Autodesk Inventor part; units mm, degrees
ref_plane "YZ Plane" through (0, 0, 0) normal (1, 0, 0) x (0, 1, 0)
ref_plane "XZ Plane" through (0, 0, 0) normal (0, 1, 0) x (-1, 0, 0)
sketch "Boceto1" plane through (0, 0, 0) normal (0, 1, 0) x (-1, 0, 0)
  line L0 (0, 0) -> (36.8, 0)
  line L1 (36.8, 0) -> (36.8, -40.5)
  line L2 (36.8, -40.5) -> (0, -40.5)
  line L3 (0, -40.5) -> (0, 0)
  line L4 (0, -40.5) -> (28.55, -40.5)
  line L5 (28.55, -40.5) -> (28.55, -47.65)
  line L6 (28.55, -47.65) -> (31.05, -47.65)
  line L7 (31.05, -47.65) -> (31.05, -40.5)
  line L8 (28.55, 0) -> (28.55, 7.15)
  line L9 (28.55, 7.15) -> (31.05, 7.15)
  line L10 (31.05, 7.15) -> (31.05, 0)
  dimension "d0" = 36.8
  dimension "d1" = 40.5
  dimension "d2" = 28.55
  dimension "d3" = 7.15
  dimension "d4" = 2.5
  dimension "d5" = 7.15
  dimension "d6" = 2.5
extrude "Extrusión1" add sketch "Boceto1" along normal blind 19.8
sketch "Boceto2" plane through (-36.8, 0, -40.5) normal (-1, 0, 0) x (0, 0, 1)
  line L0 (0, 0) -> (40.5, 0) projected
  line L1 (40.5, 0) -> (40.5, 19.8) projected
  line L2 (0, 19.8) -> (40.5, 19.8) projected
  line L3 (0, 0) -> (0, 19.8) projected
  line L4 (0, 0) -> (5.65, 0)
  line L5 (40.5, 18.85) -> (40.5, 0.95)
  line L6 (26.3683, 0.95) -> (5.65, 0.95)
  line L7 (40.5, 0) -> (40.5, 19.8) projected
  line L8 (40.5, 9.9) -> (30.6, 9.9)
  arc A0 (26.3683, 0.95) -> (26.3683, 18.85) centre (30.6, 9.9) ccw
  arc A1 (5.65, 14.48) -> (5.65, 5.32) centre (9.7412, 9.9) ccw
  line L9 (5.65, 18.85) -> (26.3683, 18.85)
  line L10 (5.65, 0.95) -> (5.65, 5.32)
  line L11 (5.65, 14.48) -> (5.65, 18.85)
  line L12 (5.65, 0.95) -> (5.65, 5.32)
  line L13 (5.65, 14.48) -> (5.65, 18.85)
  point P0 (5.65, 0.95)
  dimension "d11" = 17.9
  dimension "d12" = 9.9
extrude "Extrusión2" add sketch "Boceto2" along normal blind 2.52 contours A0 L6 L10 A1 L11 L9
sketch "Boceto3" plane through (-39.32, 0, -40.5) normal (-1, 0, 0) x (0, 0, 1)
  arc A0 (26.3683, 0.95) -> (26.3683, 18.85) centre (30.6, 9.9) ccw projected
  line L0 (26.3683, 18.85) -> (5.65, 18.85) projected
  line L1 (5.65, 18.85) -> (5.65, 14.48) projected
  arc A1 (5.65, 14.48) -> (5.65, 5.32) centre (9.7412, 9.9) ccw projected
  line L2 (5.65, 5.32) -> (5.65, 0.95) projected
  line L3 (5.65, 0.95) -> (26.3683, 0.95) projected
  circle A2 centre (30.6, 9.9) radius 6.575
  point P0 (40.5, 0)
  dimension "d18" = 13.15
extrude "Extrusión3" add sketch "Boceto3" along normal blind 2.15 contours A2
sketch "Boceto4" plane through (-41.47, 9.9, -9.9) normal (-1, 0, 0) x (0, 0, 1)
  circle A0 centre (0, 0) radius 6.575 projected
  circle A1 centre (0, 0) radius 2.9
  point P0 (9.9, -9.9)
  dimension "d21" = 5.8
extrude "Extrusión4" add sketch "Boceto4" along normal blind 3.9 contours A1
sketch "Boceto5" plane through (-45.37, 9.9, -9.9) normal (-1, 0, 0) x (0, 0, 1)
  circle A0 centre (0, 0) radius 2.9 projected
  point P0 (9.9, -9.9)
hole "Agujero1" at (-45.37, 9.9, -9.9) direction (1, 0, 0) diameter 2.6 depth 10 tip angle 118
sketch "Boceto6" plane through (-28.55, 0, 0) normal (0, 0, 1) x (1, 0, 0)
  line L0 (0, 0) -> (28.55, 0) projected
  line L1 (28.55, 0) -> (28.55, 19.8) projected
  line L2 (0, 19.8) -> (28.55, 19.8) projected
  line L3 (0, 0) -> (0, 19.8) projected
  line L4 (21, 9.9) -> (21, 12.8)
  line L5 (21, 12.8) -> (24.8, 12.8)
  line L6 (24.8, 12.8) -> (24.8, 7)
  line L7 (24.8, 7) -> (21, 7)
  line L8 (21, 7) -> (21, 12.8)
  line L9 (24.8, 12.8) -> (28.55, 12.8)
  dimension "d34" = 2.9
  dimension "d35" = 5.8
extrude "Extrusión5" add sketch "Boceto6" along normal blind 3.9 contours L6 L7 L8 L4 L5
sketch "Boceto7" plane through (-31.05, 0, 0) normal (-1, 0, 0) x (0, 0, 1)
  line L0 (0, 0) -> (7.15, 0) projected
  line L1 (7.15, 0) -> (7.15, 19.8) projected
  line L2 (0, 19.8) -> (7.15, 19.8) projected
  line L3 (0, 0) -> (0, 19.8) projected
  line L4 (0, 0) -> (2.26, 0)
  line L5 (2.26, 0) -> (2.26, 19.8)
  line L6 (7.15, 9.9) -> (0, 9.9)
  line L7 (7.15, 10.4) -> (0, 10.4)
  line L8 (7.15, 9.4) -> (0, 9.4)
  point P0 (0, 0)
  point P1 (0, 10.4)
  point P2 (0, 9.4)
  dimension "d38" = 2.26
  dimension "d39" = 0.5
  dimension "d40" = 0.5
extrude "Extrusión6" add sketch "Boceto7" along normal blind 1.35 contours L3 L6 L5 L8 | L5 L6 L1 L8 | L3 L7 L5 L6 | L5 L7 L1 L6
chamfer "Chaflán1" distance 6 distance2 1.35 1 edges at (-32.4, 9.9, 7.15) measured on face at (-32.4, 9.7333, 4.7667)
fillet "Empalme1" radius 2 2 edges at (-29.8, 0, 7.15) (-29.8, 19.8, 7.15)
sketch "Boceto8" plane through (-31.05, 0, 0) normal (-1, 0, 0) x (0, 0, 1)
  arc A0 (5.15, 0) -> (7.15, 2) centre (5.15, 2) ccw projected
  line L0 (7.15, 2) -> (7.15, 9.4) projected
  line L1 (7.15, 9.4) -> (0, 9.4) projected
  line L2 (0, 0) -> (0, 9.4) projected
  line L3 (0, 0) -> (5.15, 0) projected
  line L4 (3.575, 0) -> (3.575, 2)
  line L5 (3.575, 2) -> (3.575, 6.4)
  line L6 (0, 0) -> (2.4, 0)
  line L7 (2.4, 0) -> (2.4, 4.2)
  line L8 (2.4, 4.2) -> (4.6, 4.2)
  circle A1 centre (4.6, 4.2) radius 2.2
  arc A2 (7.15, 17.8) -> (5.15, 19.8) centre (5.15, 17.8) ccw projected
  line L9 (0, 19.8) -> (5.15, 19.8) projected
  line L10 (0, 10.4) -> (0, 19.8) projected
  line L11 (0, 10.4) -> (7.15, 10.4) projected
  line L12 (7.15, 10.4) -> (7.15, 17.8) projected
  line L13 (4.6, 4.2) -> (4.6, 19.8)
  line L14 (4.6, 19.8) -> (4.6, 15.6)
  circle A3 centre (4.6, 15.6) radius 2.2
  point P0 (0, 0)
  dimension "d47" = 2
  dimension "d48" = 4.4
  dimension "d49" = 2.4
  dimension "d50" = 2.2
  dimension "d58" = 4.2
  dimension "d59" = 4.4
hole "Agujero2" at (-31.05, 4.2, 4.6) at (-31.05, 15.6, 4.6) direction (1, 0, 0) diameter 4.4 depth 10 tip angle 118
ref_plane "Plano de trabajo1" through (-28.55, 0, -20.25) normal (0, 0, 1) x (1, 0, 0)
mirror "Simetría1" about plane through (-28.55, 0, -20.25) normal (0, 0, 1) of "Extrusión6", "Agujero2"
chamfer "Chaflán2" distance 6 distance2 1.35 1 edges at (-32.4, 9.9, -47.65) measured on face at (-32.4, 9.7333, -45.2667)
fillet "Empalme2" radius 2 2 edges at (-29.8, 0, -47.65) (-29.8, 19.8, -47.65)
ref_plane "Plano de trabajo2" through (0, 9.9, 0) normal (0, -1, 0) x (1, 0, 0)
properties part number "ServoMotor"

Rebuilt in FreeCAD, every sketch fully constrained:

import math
import FreeCAD as App
import Part
import Sketcher
from FreeCAD import Vector
Q = App.Units.Quantity


def edges_at(feature, points):
    """Names of the edges that pass closest to the given points."""
    edges = feature.Shape.Edges
    near = lambda p: min(range(len(edges)), key=lambda i: edges[i].distToShape(Part.Vertex(*p))[0])
    return sorted({f"Edge{near(p) + 1}" for p in points})

doc = App.newDocument("Part")
params = doc.addObject("Spreadsheet::Sheet", "Params")
for row, (alias, value) in enumerate([
    ("sketch1_width", "2.5 mm"),
    ("sketch1_height", "40.5 mm"),
    ("sketch1_width2", "28.55 mm"),
    ("sketch1_height2", "7.15 mm"),
    ("pad1_length", "19.8 mm"),
    ("sketch2_radius", "9.9 mm"),
    ("sketch2_width", "4.37 mm"),
    ("pad2_length", "2.52 mm"),
    ("sketch3_diameter", "13.15 mm"),
    ("pad3_length", "2.15 mm"),
    ("sketch4_diameter", "5.8 mm"),
    ("pad4_length", "3.9 mm"),
    ("sketch5_diameter", "2.6 mm"),
    ("hole_diameter", "2.6 mm"),
    ("hole_depth", "10 mm"),
    ("sketch6_height", "5.8 mm"),
    ("sketch6_width", "3.8 mm"),
    ("pad5_length", "3.9 mm"),
    ("sketch7_width", "1 mm"),
    ("sketch7_height", "7.15 mm"),
    ("pad6_length", "1.35 mm"),
    ("chamfer_size", "6 mm"),
    ("chamfer_size2", "1.35 mm"),
    ("fillet_radius", "2 mm"),
    ("sketch8_diameter", "4.4 mm"),
    ("hole2_diameter", "4.4 mm"),
    ("hole2_depth", "10 mm"),
    ("chamfer2_size", "6 mm"),
    ("chamfer2_size2", "1.35 mm"),
    ("fillet2_radius", "2 mm"),
], start=1):
    params.set(f"A{row}", alias)
    params.set(f"B{row}", "=" + value)
    params.setAlias(f"B{row}", alias)

body = doc.addObject("PartDesign::Body", "Body")

sketch1 = doc.addObject("Sketcher::SketchObject", "Sketch")
body.addObject(sketch1)
sketch1.AttachmentSupport = (doc.XZ_Plane, [""])
sketch1.MapMode = "FlatFace"
sketch1.addGeometry([
    Part.LineSegment(Vector(-28.55, 0, 0), Vector(0, 0, 0)),
    Part.LineSegment(Vector(0, 0, 0), Vector(0, -40.5, 0)),
    Part.LineSegment(Vector(0, -40.5, 0), Vector(-28.55, -40.5, 0)),
    Part.LineSegment(Vector(-28.55, -40.5, 0), Vector(-28.55, -47.65, 0)),
    Part.LineSegment(Vector(-28.55, -47.65, 0), Vector(-31.05, -47.65, 0)),
    Part.LineSegment(Vector(-31.05, -47.65, 0), Vector(-31.05, -40.5, 0)),
    Part.LineSegment(Vector(-31.05, -40.5, 0), Vector(-36.8, -40.5, 0)),
    Part.LineSegment(Vector(-36.8, -40.5, 0), Vector(-36.8, 0, 0)),
    Part.LineSegment(Vector(-36.8, 0, 0), Vector(-31.05, 0, 0)),
    Part.LineSegment(Vector(-31.05, 0, 0), Vector(-31.05, 7.15, 0)),
    Part.LineSegment(Vector(-31.05, 7.15, 0), Vector(-28.55, 7.15, 0)),
    Part.LineSegment(Vector(-28.55, 7.15, 0), Vector(-28.55, 0, 0)),
], False)
sketch1.addConstraint([
    Sketcher.Constraint("Coincident", 0, 2, 1, 1),
    Sketcher.Constraint("Coincident", 1, 2, 2, 1),
    Sketcher.Constraint("Coincident", 2, 2, 3, 1),
    Sketcher.Constraint("Coincident", 3, 2, 4, 1),
    Sketcher.Constraint("Coincident", 4, 2, 5, 1),
    Sketcher.Constraint("Coincident", 5, 2, 6, 1),
    Sketcher.Constraint("Coincident", 6, 2, 7, 1),
    Sketcher.Constraint("Coincident", 7, 2, 8, 1),
    Sketcher.Constraint("Coincident", 8, 2, 9, 1),
    Sketcher.Constraint("Coincident", 9, 2, 10, 1),
    Sketcher.Constraint("Coincident", 10, 2, 11, 1),
    Sketcher.Constraint("Coincident", 11, 2, 0, 1),
    Sketcher.Constraint("Horizontal", 0),
    Sketcher.Constraint("Vertical", 1),
    Sketcher.Constraint("Horizontal", 2),
    Sketcher.Constraint("Vertical", 3),
    Sketcher.Constraint("Horizontal", 4),
    Sketcher.Constraint("Vertical", 5),
    Sketcher.Constraint("Horizontal", 6),
    Sketcher.Constraint("Vertical", 7),
    Sketcher.Constraint("Horizontal", 8),
    Sketcher.Constraint("Vertical", 9),
    Sketcher.Constraint("Horizontal", 10),
    Sketcher.Constraint("Vertical", 11),
    Sketcher.Constraint("Coincident", 0, 2, -1, 1),
    Sketcher.Constraint("PointOnObject", 7, 2, -1),
    Sketcher.Constraint("Horizontal", 2, 2, 5, 2),
    Sketcher.Constraint("Vertical", 5, 2, 8, 2),
    Sketcher.Constraint("Vertical", 3, 2, 10, 2),
    Sketcher.Constraint("Equal", 5, 9),
    Sketcher.Constraint("DistanceX", 4, 2, 4, 1, Q("2.5 mm")),
    Sketcher.Constraint("DistanceY", 1, 2, 1, 1, Q("40.5 mm")),
    Sketcher.Constraint("DistanceX", 0, 1, 0, 2, Q("28.55 mm")),
    Sketcher.Constraint("DistanceY", 3, 2, 3, 1, Q("7.15 mm")),
    Sketcher.Constraint("DistanceX", 6, 2, -1, 1, Q("36.8 mm")),
])
sketch1.setExpression("Constraints[30]", "Params.sketch1_width")
sketch1.setExpression("Constraints[31]", "Params.sketch1_height")
sketch1.setExpression("Constraints[32]", "Params.sketch1_width2")
sketch1.setExpression("Constraints[33]", "Params.sketch1_height2")
pad1 = doc.addObject("PartDesign::Pad", "Pad")
body.addObject(pad1)
pad1.Profile = sketch1
pad1.setExpression("Length", "Params.pad1_length")
pad1.Reversed = True

sketch2 = doc.addObject("Sketcher::SketchObject", "Sketch001")
body.addObject(sketch2)
sketch2.AttachmentSupport = (doc.YZ_Plane, [""])
sketch2.MapMode = "FlatFace"
sketch2.AttachmentOffset = App.Placement(Vector(0, 0, -36.8), App.Rotation())
sketch2.addGeometry([
    Part.ArcOfCircle(Part.Circle(Vector(9.9, -9.9, 0), Vector(0, 0, 1), 9.899989), math.radians(-25.305517), math.radians(205.305517)),
    Part.LineSegment(Vector(18.85, -14.1317, 0), Vector(18.85, -34.85, 0)),
    Part.LineSegment(Vector(18.85, -34.85, 0), Vector(14.48, -34.85, 0)),
    Part.ArcOfCircle(Part.Circle(Vector(9.9, -30.7588, 0), Vector(0, 0, 1), 6.141198), math.radians(-138.226378), math.radians(-41.773622)),
    Part.LineSegment(Vector(5.32, -34.85, 0), Vector(0.95, -34.85, 0)),
    Part.LineSegment(Vector(0.95, -34.85, 0), Vector(0.95, -14.1317, 0)),
], False)
sketch2.addConstraint([
    Sketcher.Constraint("Coincident", 0, 1, 1, 1),
    Sketcher.Constraint("Coincident", 1, 2, 2, 1),
    Sketcher.Constraint("Coincident", 2, 2, 3, 2),
    Sketcher.Constraint("Coincident", 3, 1, 4, 1),
    Sketcher.Constraint("Coincident", 4, 2, 5, 1),
    Sketcher.Constraint("Coincident", 5, 2, 0, 2),
    Sketcher.Constraint("Vertical", 1),
    Sketcher.Constraint("Horizontal", 2),
    Sketcher.Constraint("Horizontal", 4),
    Sketcher.Constraint("Vertical", 5),
    Sketcher.Constraint("Horizontal", 2, 2, 3, 1),
    Sketcher.Constraint("Horizontal", 0, 1, 5, 2),
    Sketcher.Constraint("Vertical", 0, 3, 3, 3),
    Sketcher.Constraint("Radius", 0, Q("9.9 mm")),
    Sketcher.Constraint("DistanceX", -1, 1, 0, 3, Q("9.9 mm")),
    Sketcher.Constraint("DistanceY", 0, 3, -1, 1, Q("9.9 mm")),
    Sketcher.Constraint("DistanceX", 4, 2, 1, 2, Q("17.9 mm")),
    Sketcher.Constraint("DistanceX", 2, 2, 2, 1, Q("4.37 mm")),
    Sketcher.Constraint("Radius", 3, Q("6.1412 mm")),
    Sketcher.Constraint("DistanceY", 1, 2, -1, 1, Q("34.85 mm")),
])
sketch2.setExpression("Constraints[13]", "Params.sketch2_radius")
sketch2.setExpression("Constraints[17]", "Params.sketch2_width")
pad2 = doc.addObject("PartDesign::Pad", "Pad001")
body.addObject(pad2)
pad2.Profile = sketch2
pad2.setExpression("Length", "Params.pad2_length")
pad2.Reversed = True

sketch3 = doc.addObject("Sketcher::SketchObject", "Sketch002")
body.addObject(sketch3)
sketch3.AttachmentSupport = (doc.YZ_Plane, [""])
sketch3.MapMode = "FlatFace"
sketch3.AttachmentOffset = App.Placement(Vector(0, 0, -39.32), App.Rotation())
sketch3.addGeometry(Part.Circle(Vector(9.9, -9.9, 0), Vector(0, 0, 1), 6.575), False)
sketch3.addConstraint([
    Sketcher.Constraint("Diameter", 0, Q("13.15 mm")),
    Sketcher.Constraint("DistanceX", -1, 1, 0, 3, Q("9.9 mm")),
    Sketcher.Constraint("DistanceY", 0, 3, -1, 1, Q("9.9 mm")),
])
sketch3.setExpression("Constraints[0]", "Params.sketch3_diameter")
pad3 = doc.addObject("PartDesign::Pad", "Pad002")
body.addObject(pad3)
pad3.Profile = sketch3
pad3.setExpression("Length", "Params.pad3_length")
pad3.Reversed = True

sketch4 = doc.addObject("Sketcher::SketchObject", "Sketch003")
body.addObject(sketch4)
sketch4.AttachmentSupport = (doc.YZ_Plane, [""])
sketch4.MapMode = "FlatFace"
sketch4.AttachmentOffset = App.Placement(Vector(0, 0, -41.47), App.Rotation())
sketch4.addGeometry(Part.Circle(Vector(9.9, -9.9, 0), Vector(0, 0, 1), 2.9), False)
sketch4.addConstraint([
    Sketcher.Constraint("Diameter", 0, Q("5.8 mm")),
    Sketcher.Constraint("DistanceX", -1, 1, 0, 3, Q("9.9 mm")),
    Sketcher.Constraint("DistanceY", 0, 3, -1, 1, Q("9.9 mm")),
])
sketch4.setExpression("Constraints[0]", "Params.sketch4_diameter")
pad4 = doc.addObject("PartDesign::Pad", "Pad003")
body.addObject(pad4)
pad4.Profile = sketch4
pad4.setExpression("Length", "Params.pad4_length")
pad4.Reversed = True

sketch5 = doc.addObject("Sketcher::SketchObject", "Sketch004")
body.addObject(sketch5)
sketch5.AttachmentSupport = (doc.YZ_Plane, [""])
sketch5.MapMode = "FlatFace"
sketch5.AttachmentOffset = App.Placement(Vector(0, 0, -45.37), App.Rotation())
sketch5.addGeometry(Part.Circle(Vector(9.9, -9.9, 0), Vector(0, 0, 1), 1.3), False)
sketch5.addConstraint([
    Sketcher.Constraint("Diameter", 0, Q("2.6 mm")),
    Sketcher.Constraint("DistanceX", -1, 1, 0, 3, Q("9.9 mm")),
    Sketcher.Constraint("DistanceY", 0, 3, -1, 1, Q("9.9 mm")),
])
sketch5.setExpression("Constraints[0]", "Params.sketch5_diameter")
doc.recompute()
hole = doc.addObject("PartDesign::Hole", "Hole")
body.addObject(hole)
hole.Profile = sketch5
hole.ThreadType = "None"
hole.setExpression("Diameter", "Params.hole_diameter")
hole.DepthType = "Dimension"
hole.setExpression("Depth", "Params.hole_depth")
hole.DrillPoint = "Angled"
hole.DrillPointAngle = 118
hole.Reversed = True

sketch6 = doc.addObject("Sketcher::SketchObject", "Sketch005")
body.addObject(sketch6)
sketch6.AttachmentSupport = (doc.XY_Plane, [""])
sketch6.MapMode = "FlatFace"
sketch6.addGeometry([
    Part.LineSegment(Vector(-3.75, 7, 0), Vector(-3.75, 12.8, 0)),
    Part.LineSegment(Vector(-3.75, 12.8, 0), Vector(-7.55, 12.8, 0)),
    Part.LineSegment(Vector(-7.55, 12.8, 0), Vector(-7.55, 7, 0)),
    Part.LineSegment(Vector(-7.55, 7, 0), Vector(-3.75, 7, 0)),
], False)
sketch6.addConstraint([
    Sketcher.Constraint("Coincident", 0, 2, 1, 1),
    Sketcher.Constraint("Coincident", 1, 2, 2, 1),
    Sketcher.Constraint("Coincident", 2, 2, 3, 1),
    Sketcher.Constraint("Coincident", 3, 2, 0, 1),
    Sketcher.Constraint("Vertical", 0),
    Sketcher.Constraint("Horizontal", 1),
    Sketcher.Constraint("Vertical", 2),
    Sketcher.Constraint("Horizontal", 3),
    Sketcher.Constraint("DistanceY", 0, 1, 0, 2, Q("5.8 mm")),
    Sketcher.Constraint("DistanceX", 1, 2, 1, 1, Q("3.8 mm")),
    Sketcher.Constraint("DistanceY", -1, 1, 2, 2, Q("7 mm")),
    Sketcher.Constraint("DistanceX", 0, 2, -1, 1, Q("3.75 mm")),
])
sketch6.setExpression("Constraints[8]", "Params.sketch6_height")
sketch6.setExpression("Constraints[9]", "Params.sketch6_width")
pad5 = doc.addObject("PartDesign::Pad", "Pad004")
body.addObject(pad5)
pad5.Profile = sketch6
pad5.setExpression("Length", "Params.pad5_length")

sketch7 = doc.addObject("Sketcher::SketchObject", "Sketch006")
body.addObject(sketch7)
sketch7.AttachmentSupport = (doc.YZ_Plane, [""])
sketch7.MapMode = "FlatFace"
sketch7.AttachmentOffset = App.Placement(Vector(0, 0, -31.05), App.Rotation())
sketch7.addGeometry([
    Part.LineSegment(Vector(9.4, 0, 0), Vector(9.4, 7.15, 0)),
    Part.LineSegment(Vector(9.4, 7.15, 0), Vector(10.4, 7.15, 0)),
    Part.LineSegment(Vector(10.4, 7.15, 0), Vector(10.4, 0, 0)),
    Part.LineSegment(Vector(10.4, 0, 0), Vector(9.4, 0, 0)),
], False)
sketch7.addConstraint([
    Sketcher.Constraint("Coincident", 0, 2, 1, 1),
    Sketcher.Constraint("Coincident", 1, 2, 2, 1),
    Sketcher.Constraint("Coincident", 2, 2, 3, 1),
    Sketcher.Constraint("Coincident", 3, 2, 0, 1),
    Sketcher.Constraint("Vertical", 0),
    Sketcher.Constraint("Horizontal", 1),
    Sketcher.Constraint("Vertical", 2),
    Sketcher.Constraint("Horizontal", 3),
    Sketcher.Constraint("PointOnObject", 2, 2, -1),
    Sketcher.Constraint("DistanceX", 1, 1, 1, 2, Q("1 mm")),
    Sketcher.Constraint("DistanceY", 0, 1, 0, 2, Q("7.15 mm")),
    Sketcher.Constraint("DistanceX", -1, 1, 0, 2, Q("9.4 mm")),
])
sketch7.setExpression("Constraints[9]", "Params.sketch7_width")
sketch7.setExpression("Constraints[10]", "Params.sketch7_height")
pad6 = doc.addObject("PartDesign::Pad", "Pad005")
body.addObject(pad6)
pad6.Profile = sketch7
pad6.setExpression("Length", "Params.pad6_length")
pad6.Reversed = True
doc.recompute()

chamfer = doc.addObject("PartDesign::Chamfer", "Chamfer")
body.addObject(chamfer)
chamfer.Base = (pad6, edges_at(pad6, [(-32.4, 9.9, 7.15)]))
chamfer.ChamferType = "Two distances"
chamfer.setExpression("Size", "Params.chamfer_size")
chamfer.setExpression("Size2", "Params.chamfer_size2")
doc.recompute()

fillet = doc.addObject("PartDesign::Fillet", "Fillet")
body.addObject(fillet)
fillet.Base = (chamfer, edges_at(chamfer, [(-29.8, 0, 7.15), (-29.8, 19.8, 7.15)]))
fillet.setExpression("Radius", "Params.fillet_radius")

sketch8 = doc.addObject("Sketcher::SketchObject", "Sketch007")
body.addObject(sketch8)
sketch8.AttachmentSupport = (doc.YZ_Plane, [""])
sketch8.MapMode = "FlatFace"
sketch8.AttachmentOffset = App.Placement(Vector(0, 0, -31.05), App.Rotation())
sketch8.addGeometry([
    Part.Circle(Vector(4.2, 4.6, 0), Vector(0, 0, 1), 2.2),
    Part.Circle(Vector(15.6, 4.6, 0), Vector(0, 0, 1), 2.2),
], False)
sketch8.addConstraint([
    Sketcher.Constraint("Equal", 0, 1),
    Sketcher.Constraint("Horizontal", 0, 3, 1, 3),
    Sketcher.Constraint("Diameter", 0, Q("4.4 mm")),
    Sketcher.Constraint("DistanceX", -1, 1, 0, 3, Q("4.2 mm")),
    Sketcher.Constraint("DistanceY", -1, 1, 0, 3, Q("4.6 mm")),
    Sketcher.Constraint("DistanceX", -1, 1, 1, 3, Q("15.6 mm")),
])
sketch8.setExpression("Constraints[2]", "Params.sketch8_diameter")
doc.recompute()
hole2 = doc.addObject("PartDesign::Hole", "Hole001")
body.addObject(hole2)
hole2.Profile = sketch8
hole2.ThreadType = "None"
hole2.setExpression("Diameter", "Params.hole2_diameter")
hole2.DepthType = "Dimension"
hole2.setExpression("Depth", "Params.hole2_depth")
hole2.DrillPoint = "Angled"
hole2.DrillPointAngle = 118
hole2.Reversed = True
doc.recompute()

datumplane = doc.addObject("PartDesign::Plane", "DatumPlane")
body.addObject(datumplane)
datumplane.AttachmentSupport = (doc.XY_Plane, [""])
datumplane.MapMode = "FlatFace"
datumplane.AttachmentOffset = App.Placement(Vector(0, 0, -20.25), App.Rotation())
mirrored = doc.addObject("PartDesign::Mirrored", "Mirrored")
body.addObject(mirrored)
mirrored.Originals = [pad6, hole2]
mirrored.MirrorPlane = (datumplane, [""])
body.Tip = mirrored
doc.recompute()

chamfer2 = doc.addObject("PartDesign::Chamfer", "Chamfer001")
body.addObject(chamfer2)
chamfer2.Base = (mirrored, edges_at(mirrored, [(-32.4, 9.9, -47.65)]))
chamfer2.ChamferType = "Two distances"
chamfer2.setExpression("Size", "Params.chamfer2_size")
chamfer2.setExpression("Size2", "Params.chamfer2_size2")
doc.recompute()

fillet2 = doc.addObject("PartDesign::Fillet", "Fillet001")
body.addObject(fillet2)
fillet2.Base = (chamfer2, edges_at(chamfer2, [(-29.8, 0, -47.65), (-29.8, 19.8, -47.65)]))
fillet2.setExpression("Radius", "Params.fillet2_radius")

doc.recompute()
